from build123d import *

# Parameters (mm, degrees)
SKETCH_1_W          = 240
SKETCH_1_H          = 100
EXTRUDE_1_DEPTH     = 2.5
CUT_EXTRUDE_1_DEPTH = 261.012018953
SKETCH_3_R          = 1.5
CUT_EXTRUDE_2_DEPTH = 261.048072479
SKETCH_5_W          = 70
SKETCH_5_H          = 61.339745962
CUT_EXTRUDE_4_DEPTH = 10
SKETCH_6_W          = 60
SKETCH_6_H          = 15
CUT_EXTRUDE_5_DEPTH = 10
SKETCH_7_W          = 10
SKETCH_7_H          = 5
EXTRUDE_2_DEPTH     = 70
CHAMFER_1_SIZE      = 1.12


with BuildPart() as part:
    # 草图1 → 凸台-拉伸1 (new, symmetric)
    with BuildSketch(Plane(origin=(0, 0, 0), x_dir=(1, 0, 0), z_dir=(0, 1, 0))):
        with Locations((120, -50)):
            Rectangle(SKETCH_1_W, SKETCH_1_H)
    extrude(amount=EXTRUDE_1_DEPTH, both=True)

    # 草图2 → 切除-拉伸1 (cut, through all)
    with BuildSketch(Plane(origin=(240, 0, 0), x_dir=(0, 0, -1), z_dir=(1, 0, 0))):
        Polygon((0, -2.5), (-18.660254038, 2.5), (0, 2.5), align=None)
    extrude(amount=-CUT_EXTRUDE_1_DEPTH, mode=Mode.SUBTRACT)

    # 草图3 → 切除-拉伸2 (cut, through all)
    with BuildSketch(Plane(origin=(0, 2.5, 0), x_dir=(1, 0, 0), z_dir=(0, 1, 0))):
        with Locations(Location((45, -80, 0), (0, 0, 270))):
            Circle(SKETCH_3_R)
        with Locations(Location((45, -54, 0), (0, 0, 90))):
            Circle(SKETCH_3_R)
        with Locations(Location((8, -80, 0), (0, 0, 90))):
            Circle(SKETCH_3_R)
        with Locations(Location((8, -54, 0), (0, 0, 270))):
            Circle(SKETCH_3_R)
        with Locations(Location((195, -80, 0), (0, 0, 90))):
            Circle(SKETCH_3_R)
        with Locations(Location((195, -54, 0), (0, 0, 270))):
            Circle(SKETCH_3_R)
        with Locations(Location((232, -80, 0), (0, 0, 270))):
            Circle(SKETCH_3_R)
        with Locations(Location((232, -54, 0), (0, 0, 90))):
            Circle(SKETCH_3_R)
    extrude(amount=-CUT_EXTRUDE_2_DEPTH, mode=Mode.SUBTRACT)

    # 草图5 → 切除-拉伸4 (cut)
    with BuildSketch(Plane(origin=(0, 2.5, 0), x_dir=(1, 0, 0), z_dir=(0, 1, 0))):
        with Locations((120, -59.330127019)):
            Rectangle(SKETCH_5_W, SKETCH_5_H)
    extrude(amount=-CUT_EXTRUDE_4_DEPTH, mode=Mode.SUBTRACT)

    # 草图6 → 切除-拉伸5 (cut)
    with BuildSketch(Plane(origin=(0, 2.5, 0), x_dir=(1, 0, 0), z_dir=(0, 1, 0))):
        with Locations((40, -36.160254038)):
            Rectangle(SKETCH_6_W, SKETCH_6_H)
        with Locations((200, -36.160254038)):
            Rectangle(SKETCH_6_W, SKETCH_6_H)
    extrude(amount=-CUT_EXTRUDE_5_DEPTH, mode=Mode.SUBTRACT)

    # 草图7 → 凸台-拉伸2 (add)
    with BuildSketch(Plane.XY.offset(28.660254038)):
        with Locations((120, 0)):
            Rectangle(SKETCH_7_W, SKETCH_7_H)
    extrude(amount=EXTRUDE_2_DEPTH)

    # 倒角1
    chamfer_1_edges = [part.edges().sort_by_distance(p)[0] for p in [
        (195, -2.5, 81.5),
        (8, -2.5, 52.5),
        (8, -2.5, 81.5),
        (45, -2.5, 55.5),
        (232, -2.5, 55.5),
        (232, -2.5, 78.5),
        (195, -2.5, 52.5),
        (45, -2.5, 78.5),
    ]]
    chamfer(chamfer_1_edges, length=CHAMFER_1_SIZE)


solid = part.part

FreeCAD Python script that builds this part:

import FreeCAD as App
import Part
import Sketcher
from FreeCAD import Vector
Q = App.Units.Quantity


def edges_at(feature, points):
    """Names of the edges that pass closest to the given points."""
    edges = feature.Shape.Edges
    near = lambda p: min(range(len(edges)), key=lambda i: edges[i].distToShape(Part.Vertex(*p))[0])
    return sorted({f"Edge{near(p) + 1}" for p in points})

doc = App.newDocument("Part")
body = doc.addObject("PartDesign::Body", "Body")

# Sketch on XZ plane
sketch1 = doc.addObject("Sketcher::SketchObject", "Sketch")
body.addObject(sketch1)
sketch1.AttachmentSupport = (doc.XZ_Plane, [""])
sketch1.MapMode = "FlatFace"
sketch1.addGeometry([
    Part.LineSegment(Vector(0, 0, 0), Vector(0, 100, 0)),
    Part.LineSegment(Vector(0, 100, 0), Vector(240, 100, 0)),
    Part.LineSegment(Vector(240, 100, 0), Vector(240, 0, 0)),
    Part.LineSegment(Vector(240, 0, 0), Vector(0, 0, 0)),
], False)
sketch1.addConstraint([
    Sketcher.Constraint("Coincident", 0, 2, 1, 1),
    Sketcher.Constraint("Coincident", 1, 2, 2, 1),
    Sketcher.Constraint("Coincident", 2, 2, 3, 1),
    Sketcher.Constraint("Coincident", 3, 2, 0, 1),
    Sketcher.Constraint("Vertical", 0),
    Sketcher.Constraint("Horizontal", 1),
    Sketcher.Constraint("Vertical", 2),
    Sketcher.Constraint("Horizontal", 3),
    Sketcher.Constraint("Coincident", 3, 2, -1, 1),
    Sketcher.Constraint("DistanceX", 1, 1, 1, 2, 240.0),
    Sketcher.Constraint("DistanceY", 0, 1, 0, 2, 100.0),
])
pad1 = doc.addObject("PartDesign::Pad", "Pad")
body.addObject(pad1)
pad1.Profile = sketch1
pad1.Length = 5
pad1.Midplane = True

# Sketch on YZ plane
sketch2 = doc.addObject("Sketcher::SketchObject", "Sketch001")
body.addObject(sketch2)
sketch2.AttachmentSupport = (doc.YZ_Plane, [""])
sketch2.MapMode = "FlatFace"
sketch2.AttachmentOffset = App.Placement(Vector(0, 0, 240), App.Rotation())
sketch2.addGeometry([
    Part.LineSegment(Vector(2.5, 18.660254, 0), Vector(-2.5, 0, 0)),
    Part.LineSegment(Vector(-2.5, 0, 0), Vector(2.5, 0, 0)),
    Part.LineSegment(Vector(2.5, 0, 0), Vector(2.5, 18.660254, 0)),
], False)
sketch2.addConstraint([
    Sketcher.Constraint("Coincident", 0, 2, 1, 1),
    Sketcher.Constraint("Coincident", 1, 2, 2, 1),
    Sketcher.Constraint("Coincident", 2, 2, 0, 1),
    Sketcher.Constraint("Horizontal", 1),
    Sketcher.Constraint("Vertical", 2),
    Sketcher.Constraint("Symmetric", 0, 2, 1, 2, -1, 1),
    Sketcher.Constraint("DistanceX", 1, 1, 1, 2, 5.0),
    Sketcher.Constraint("Angle", 0, Q("-105 deg")),
])
pocket1 = doc.addObject("PartDesign::Pocket", "Pocket")
body.addObject(pocket1)
pocket1.Profile = sketch2
pocket1.Type = "ThroughAll"

# Sketch on XZ plane
sketch3 = doc.addObject("Sketcher::SketchObject", "Sketch002")
body.addObject(sketch3)
sketch3.AttachmentSupport = (doc.XZ_Plane, [""])
sketch3.MapMode = "FlatFace"
sketch3.AttachmentOffset = App.Placement(Vector(0, 0, -2.5), App.Rotation())
sketch3.addGeometry([
    Part.Circle(Vector(45, 80, 0), Vector(0, 0, 1), 1.5),  # 0
    Part.Circle(Vector(45, 54, 0), Vector(0, 0, 1), 1.5),  # 1
    Part.Circle(Vector(8, 80, 0), Vector(0, 0, 1), 1.5),  # 2
    Part.Circle(Vector(8, 54, 0), Vector(0, 0, 1), 1.5),  # 3
    Part.Circle(Vector(195, 80, 0), Vector(0, 0, 1), 1.5),  # 4
    Part.Circle(Vector(195, 54, 0), Vector(0, 0, 1), 1.5),  # 5
    Part.Circle(Vector(232, 80, 0), Vector(0, 0, 1), 1.5),  # 6
    Part.Circle(Vector(232, 54, 0), Vector(0, 0, 1), 1.5),  # 7
], False)
sketch3.addConstraint([
    Sketcher.Constraint("Equal", 0, 1),
    Sketcher.Constraint("Equal", 1, 2),
    Sketcher.Constraint("Equal", 2, 3),
    Sketcher.Constraint("Equal", 3, 4),
    Sketcher.Constraint("Equal", 4, 5),
    Sketcher.Constraint("Equal", 5, 6),
    Sketcher.Constraint("Equal", 6, 7),
    Sketcher.Constraint("Horizontal", 0, 3, 2, 3),
    Sketcher.Constraint("Horizontal", 1, 3, 3, 3),
    Sketcher.Constraint("Horizontal", 2, 3, 4, 3),
    Sketcher.Constraint("Horizontal", 3, 3, 5, 3),
    Sketcher.Constraint("Horizontal", 4, 3, 6, 3),
    Sketcher.Constraint("Horizontal", 5, 3, 7, 3),
    Sketcher.Constraint("Vertical", 0, 3, 1, 3),
    Sketcher.Constraint("Vertical", 2, 3, 3, 3),
    Sketcher.Constraint("Vertical", 4, 3, 5, 3),
    Sketcher.Constraint("Vertical", 6, 3, 7, 3),
    Sketcher.Constraint("Diameter", 0, 3.0),
    Sketcher.Constraint("DistanceX", -1, 1, 0, 3, 45.0),
    Sketcher.Constraint("DistanceY", -1, 1, 0, 3, 80.0),
    Sketcher.Constraint("DistanceY", -1, 1, 1, 3, 54.0),
    Sketcher.Constraint("DistanceX", -1, 1, 2, 3, 8.0),
    Sketcher.Constraint("DistanceX", -1, 1, 4, 3, 195.0),
    Sketcher.Constraint("DistanceX", -1, 1, 6, 3, 232.0),
])
pocket2 = doc.addObject("PartDesign::Pocket", "Pocket001")
body.addObject(pocket2)
pocket2.Profile = sketch3
pocket2.Type = "ThroughAll"
pocket2.Reversed = True

# Sketch on XZ plane
sketch4 = doc.addObject("Sketcher::SketchObject", "Sketch003")
body.addObject(sketch4)
sketch4.AttachmentSupport = (doc.XZ_Plane, [""])
sketch4.MapMode = "FlatFace"
sketch4.AttachmentOffset = App.Placement(Vector(0, 0, -2.5), App.Rotation())
sketch4.addGeometry([
    Part.LineSegment(Vector(85, 28.660254, 0), Vector(85, 90, 0)),
    Part.LineSegment(Vector(85, 90, 0), Vector(155, 90, 0)),
    Part.LineSegment(Vector(155, 90, 0), Vector(155, 28.660254, 0)),
    Part.LineSegment(Vector(155, 28.660254, 0), Vector(85, 28.660254, 0)),
], False)
sketch4.addConstraint([
    Sketcher.Constraint("Coincident", 0, 2, 1, 1),
    Sketcher.Constraint("Coincident", 1, 2, 2, 1),
    Sketcher.Constraint("Coincident", 2, 2, 3, 1),
    Sketcher.Constraint("Coincident", 3, 2, 0, 1),
    Sketcher.Constraint("Vertical", 0),
    Sketcher.Constraint("Horizontal", 1),
    Sketcher.Constraint("Vertical", 2),
    Sketcher.Constraint("Horizontal", 3),
    Sketcher.Constraint("DistanceX", 1, 1, 1, 2, 70.0),
    Sketcher.Constraint("DistanceX", -1, 1, 0, 2, 85.0),
    Sketcher.Constraint("DistanceY", -1, 1, 0, 2, 90.0),
    Sketcher.Constraint("DistanceY", 0, 1, 0, 2, 61.339746),
])
pocket3 = doc.addObject("PartDesign::Pocket", "Pocket002")
body.addObject(pocket3)
pocket3.Profile = sketch4
pocket3.Length = 10
pocket3.Reversed = True

# Sketch on XZ plane
sketch5 = doc.addObject("Sketcher::SketchObject", "Sketch004")
body.addObject(sketch5)
sketch5.AttachmentSupport = (doc.XZ_Plane, [""])
sketch5.MapMode = "FlatFace"
sketch5.AttachmentOffset = App.Placement(Vector(0, 0, -2.5), App.Rotation())
sketch5.addGeometry([
    Part.LineSegment(Vector(10, 28.660254, 0), Vector(10, 43.660254, 0)),  # 0
    Part.LineSegment(Vector(10, 43.660254, 0), Vector(70, 43.660254, 0)),  # 1
    Part.LineSegment(Vector(70, 43.660254, 0), Vector(70, 28.660254, 0)),  # 2
    Part.LineSegment(Vector(70, 28.660254, 0), Vector(10, 28.660254, 0)),  # 3
    Part.LineSegment(Vector(170, 28.660254, 0), Vector(170, 43.660254, 0)),  # 4
    Part.LineSegment(Vector(170, 43.660254, 0), Vector(230, 43.660254, 0)),  # 5
    Part.LineSegment(Vector(230, 43.660254, 0), Vector(230, 28.660254, 0)),  # 6
    Part.LineSegment(Vector(230, 28.660254, 0), Vector(170, 28.660254, 0)),  # 7
], False)
sketch5.addConstraint([
    Sketcher.Constraint("Coincident", 0, 2, 1, 1),
    Sketcher.Constraint("Coincident", 1, 2, 2, 1),
    Sketcher.Constraint("Coincident", 2, 2, 3, 1),
    Sketcher.Constraint("Coincident", 3, 2, 0, 1),
    Sketcher.Constraint("Coincident", 4, 2, 5, 1),
    Sketcher.Constraint("Coincident", 5, 2, 6, 1),
    Sketcher.Constraint("Coincident", 6, 2, 7, 1),
    Sketcher.Constraint("Coincident", 7, 2, 4, 1),
    Sketcher.Constraint("Vertical", 0),
    Sketcher.Constraint("Horizontal", 1),
    Sketcher.Constraint("Vertical", 2),
    Sketcher.Constraint("Horizontal", 3),
    Sketcher.Constraint("Vertical", 4),
    Sketcher.Constraint("Horizontal", 5),
    Sketcher.Constraint("Vertical", 6),
    Sketcher.Constraint("Horizontal", 7),
    Sketcher.Constraint("Horizontal", 1, 2, 4, 2),
    Sketcher.Constraint("Horizontal", 3, 2, 6, 2),
    Sketcher.Constraint("Equal", 3, 5),
    Sketcher.Constraint("DistanceX", 1, 1, 1, 2, 60.0),
    Sketcher.Constraint("DistanceY", 0, 1, 0, 2, 15.0),
    Sketcher.Constraint("DistanceX", -1, 1, 0, 2, 10.0),
    Sketcher.Constraint("DistanceX", -1, 1, 4, 2, 170.0),
    Sketcher.Constraint("DistanceY", -1, 1, 0, 2, 43.660254),
])
pocket4 = doc.addObject("PartDesign::Pocket", "Pocket003")
body.addObject(pocket4)
pocket4.Profile = sketch5
pocket4.Length = 10
pocket4.Reversed = True

# Sketch on XY plane
sketch6 = doc.addObject("Sketcher::SketchObject", "Sketch005")
body.addObject(sketch6)
sketch6.AttachmentSupport = (doc.XY_Plane, [""])
sketch6.MapMode = "FlatFace"
sketch6.AttachmentOffset = App.Placement(Vector(0, 0, 28.660254), App.Rotation())
sketch6.addGeometry([
    Part.LineSegment(Vector(115, 2.5, 0), Vector(115, -2.5, 0)),
    Part.LineSegment(Vector(115, -2.5, 0), Vector(125, -2.5, 0)),
    Part.LineSegment(Vector(125, -2.5, 0), Vector(125, 2.5, 0)),
    Part.LineSegment(Vector(125, 2.5, 0), Vector(115, 2.5, 0)),
], False)
sketch6.addConstraint([
    Sketcher.Constraint("Coincident", 0, 2, 1, 1),
    Sketcher.Constraint("Coincident", 1, 2, 2, 1),
    Sketcher.Constraint("Coincident", 2, 2, 3, 1),
    Sketcher.Constraint("Coincident", 3, 2, 0, 1),
    Sketcher.Constraint("Vertical", 0),
    Sketcher.Constraint("Horizontal", 1),
    Sketcher.Constraint("Vertical", 2),
    Sketcher.Constraint("Horizontal", 3),
    Sketcher.Constraint("DistanceX", 1, 1, 1, 2, 10.0),
    Sketcher.Constraint("DistanceY", 0, 2, 0, 1, 5.0),
    Sketcher.Constraint("DistanceX", -1, 1, 0, 2, 115.0),
    Sketcher.Constraint("DistanceY", 0, 2, -1, 1, 2.5),
])
pad2 = doc.addObject("PartDesign::Pad", "Pad001")
body.addObject(pad2)
pad2.Profile = sketch6
pad2.Length = 70
doc.recompute()

chamfer = doc.addObject("PartDesign::Chamfer", "Chamfer")
body.addObject(chamfer)
chamfer.Base = (pad2, edges_at(pad2, [
    (195, -2.5, 81.5),
    (8, -2.5, 52.5),
    (8, -2.5, 81.5),
    (45, -2.5, 55.5),
    (232, -2.5, 55.5),
    (232, -2.5, 78.5),
    (195, -2.5, 52.5),
    (45, -2.5, 78.5),
]))
chamfer.Size = 1.12

doc.recompute()
